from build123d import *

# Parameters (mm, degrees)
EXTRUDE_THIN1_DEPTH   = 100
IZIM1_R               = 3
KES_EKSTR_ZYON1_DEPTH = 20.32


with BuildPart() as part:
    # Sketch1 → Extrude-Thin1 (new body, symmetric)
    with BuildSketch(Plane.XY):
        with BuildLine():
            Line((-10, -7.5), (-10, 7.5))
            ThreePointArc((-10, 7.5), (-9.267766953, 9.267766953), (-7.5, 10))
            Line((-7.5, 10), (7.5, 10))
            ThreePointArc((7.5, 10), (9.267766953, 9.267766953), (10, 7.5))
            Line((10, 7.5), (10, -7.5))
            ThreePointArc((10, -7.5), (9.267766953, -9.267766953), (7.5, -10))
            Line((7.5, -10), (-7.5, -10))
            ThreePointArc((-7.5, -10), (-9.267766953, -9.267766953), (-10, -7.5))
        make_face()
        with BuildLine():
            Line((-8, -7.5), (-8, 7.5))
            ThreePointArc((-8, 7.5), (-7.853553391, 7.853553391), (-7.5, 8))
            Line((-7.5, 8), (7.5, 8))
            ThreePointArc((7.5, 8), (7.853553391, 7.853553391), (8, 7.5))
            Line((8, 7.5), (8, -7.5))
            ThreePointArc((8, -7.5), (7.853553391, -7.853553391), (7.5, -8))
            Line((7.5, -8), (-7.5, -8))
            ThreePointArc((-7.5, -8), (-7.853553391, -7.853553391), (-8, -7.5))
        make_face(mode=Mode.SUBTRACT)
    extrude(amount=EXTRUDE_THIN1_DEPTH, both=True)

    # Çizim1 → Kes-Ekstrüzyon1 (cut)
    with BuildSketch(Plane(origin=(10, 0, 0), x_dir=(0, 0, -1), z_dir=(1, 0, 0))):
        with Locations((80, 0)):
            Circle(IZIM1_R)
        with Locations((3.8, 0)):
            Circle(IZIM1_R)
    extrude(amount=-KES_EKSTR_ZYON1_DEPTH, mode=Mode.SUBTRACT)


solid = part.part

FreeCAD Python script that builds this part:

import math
import FreeCAD as App
import Part
import Sketcher

V = App.Vector

doc = App.newDocument("Part")
params = doc.addObject("Spreadsheet::Sheet", "Params")
for row, (alias, value) in enumerate([
    ("sketch1_radius", "2.5 mm"),
    ("sketch1_radius2", "0.5 mm"),
    ("sketch1_width", "15 mm"),
    ("pad1_length", "200 mm"),
    ("sketch2_diameter", "6 mm"),
    ("pocket1_length", "20.32 mm"),
], start=1):
    params.set(f"A{row}", alias)
    params.set(f"B{row}", "=" + value)
    params.setAlias(f"B{row}", alias)

body = doc.addObject("PartDesign::Body", "Body")

# Sketch on XY plane
sketch1 = doc.addObject("Sketcher::SketchObject", "Sketch")
body.addObject(sketch1)
sketch1.AttachmentSupport = (doc.XY_Plane, [""])
sketch1.MapMode = "FlatFace"
sketch1.addGeometry(Part.LineSegment(V(-10, 7.5, 0), V(-10, -7.5, 0)), False)
sketch1.addGeometry(Part.ArcOfCircle(Part.Circle(V(-7.5, -7.5, 0), V(0, 0, 1), 2.5), math.radians(180), math.radians(270)), False)
sketch1.addGeometry(Part.LineSegment(V(-7.5, -10, 0), V(7.5, -10, 0)), False)
sketch1.addGeometry(Part.ArcOfCircle(Part.Circle(V(7.5, -7.5, 0), V(0, 0, 1), 2.5), math.radians(-90), math.radians(0)), False)
sketch1.addGeometry(Part.LineSegment(V(10, -7.5, 0), V(10, 7.5, 0)), False)
sketch1.addGeometry(Part.ArcOfCircle(Part.Circle(V(7.5, 7.5, 0), V(0, 0, 1), 2.5), math.radians(0), math.radians(90)), False)
sketch1.addGeometry(Part.LineSegment(V(7.5, 10, 0), V(-7.5, 10, 0)), False)
sketch1.addGeometry(Part.ArcOfCircle(Part.Circle(V(-7.5, 7.5, 0), V(0, 0, 1), 2.5), math.radians(90), math.radians(180)), False)
sketch1.addGeometry(Part.LineSegment(V(-8, -7.5, 0), V(-8, 7.5, 0)), False)
sketch1.addGeometry(Part.ArcOfCircle(Part.Circle(V(-7.5, 7.5, 0), V(0, 0, 1), 0.5), math.radians(90), math.radians(180)), False)
sketch1.addGeometry(Part.LineSegment(V(-7.5, 8, 0), V(7.5, 8, 0)), False)
sketch1.addGeometry(Part.ArcOfCircle(Part.Circle(V(7.5, 7.5, 0), V(0, 0, 1), 0.5), math.radians(0), math.radians(90)), False)
sketch1.addGeometry(Part.LineSegment(V(8, 7.5, 0), V(8, -7.5, 0)), False)
sketch1.addGeometry(Part.ArcOfCircle(Part.Circle(V(7.5, -7.5, 0), V(0, 0, 1), 0.5), math.radians(-90), math.radians(0)), False)
sketch1.addGeometry(Part.LineSegment(V(7.5, -8, 0), V(-7.5, -8, 0)), False)
sketch1.addGeometry(Part.ArcOfCircle(Part.Circle(V(-7.5, -7.5, 0), V(0, 0, 1), 0.5), math.radians(180), math.radians(270)), False)
sketch1.addConstraint(Sketcher.Constraint("Tangent", 0, 2, 1, 1))
sketch1.addConstraint(Sketcher.Constraint("Tangent", 1, 2, 2, 1))
sketch1.addConstraint(Sketcher.Constraint("Tangent", 2, 2, 3, 1))
sketch1.addConstraint(Sketcher.Constraint("Tangent", 3, 2, 4, 1))
sketch1.addConstraint(Sketcher.Constraint("Tangent", 4, 2, 5, 1))
sketch1.addConstraint(Sketcher.Constraint("Tangent", 5, 2, 6, 1))
sketch1.addConstraint(Sketcher.Constraint("Tangent", 6, 2, 7, 1))
sketch1.addConstraint(Sketcher.Constraint("Tangent", 7, 2, 0, 1))
sketch1.addConstraint(Sketcher.Constraint("Tangent", 8, 2, 9, 2))
sketch1.addConstraint(Sketcher.Constraint("Tangent", 9, 1, 10, 1))
sketch1.addConstraint(Sketcher.Constraint("Tangent", 10, 2, 11, 2))
sketch1.addConstraint(Sketcher.Constraint("Tangent", 11, 1, 12, 1))
sketch1.addConstraint(Sketcher.Constraint("Tangent", 12, 2, 13, 2))
sketch1.addConstraint(Sketcher.Constraint("Tangent", 13, 1, 14, 1))
sketch1.addConstraint(Sketcher.Constraint("Tangent", 14, 2, 15, 2))
sketch1.addConstraint(Sketcher.Constraint("Tangent", 15, 1, 8, 1))
sketch1.addConstraint(Sketcher.Constraint("Vertical", 0))
sketch1.addConstraint(Sketcher.Constraint("Horizontal", 2))
sketch1.addConstraint(Sketcher.Constraint("Vertical", 4))
sketch1.addConstraint(Sketcher.Constraint("Horizontal", 6))
sketch1.addConstraint(Sketcher.Constraint("Vertical", 8))
sketch1.addConstraint(Sketcher.Constraint("Horizontal", 10))
sketch1.addConstraint(Sketcher.Constraint("Vertical", 12))
sketch1.addConstraint(Sketcher.Constraint("Horizontal", 14))
sketch1.addConstraint(Sketcher.Constraint("Coincident", 9, 3, 7, 3))
sketch1.addConstraint(Sketcher.Constraint("Coincident", 11, 3, 5, 3))
sketch1.addConstraint(Sketcher.Constraint("Coincident", 13, 3, 3, 3))
sketch1.addConstraint(Sketcher.Constraint("Equal", 1, 3))
sketch1.addConstraint(Sketcher.Constraint("Equal", 3, 5))
sketch1.addConstraint(Sketcher.Constraint("Equal", 5, 7))
sketch1.addConstraint(Sketcher.Constraint("Equal", 13, 15))
sketch1.addConstraint(Sketcher.Constraint("Symmetric", 1, 3, 5, 3, -1, 1))
sketch1.addConstraint(Sketcher.Constraint("Equal", 14, 0))
sketch1.addConstraint(Sketcher.Constraint("Radius", 1, 2.5))
sketch1.addConstraint(Sketcher.Constraint("Radius", 9, 0.5))
sketch1.addConstraint(Sketcher.Constraint("DistanceX", 2, 1, 2, 2, 15.0))
sketch1.setExpression("Constraints[33]", "Params.sketch1_radius")
sketch1.setExpression("Constraints[34]", "Params.sketch1_radius2")
sketch1.setExpression("Constraints[35]", "Params.sketch1_width")
pad1 = doc.addObject("PartDesign::Pad", "Pad")
body.addObject(pad1)
pad1.Profile = sketch1
pad1.setExpression("Length", "Params.pad1_length")
pad1.Midplane = True

# Sketch on YZ plane
sketch2 = doc.addObject("Sketcher::SketchObject", "Sketch001")
body.addObject(sketch2)
sketch2.AttachmentSupport = (doc.YZ_Plane, [""])
sketch2.MapMode = "FlatFace"
sketch2.AttachmentOffset = App.Placement(V(0, 0, 10), App.Rotation())
sketch2.addGeometry(Part.Circle(V(0, -80, 0), V(0, 0, 1), 3), False)
sketch2.addGeometry(Part.Circle(V(0, -3.8, 0), V(0, 0, 1), 3), False)
sketch2.addConstraint(Sketcher.Constraint("Equal", 0, 1))
sketch2.addConstraint(Sketcher.Constraint("PointOnObject", 0, 3, -2))
sketch2.addConstraint(Sketcher.Constraint("PointOnObject", 1, 3, -2))
sketch2.addConstraint(Sketcher.Constraint("Diameter", 0, 6.0))
sketch2.addConstraint(Sketcher.Constraint("DistanceY", 0, 3, -1, 1, 80.0))
sketch2.addConstraint(Sketcher.Constraint("DistanceY", 1, 3, -1, 1, 3.8))
sketch2.setExpression("Constraints[3]", "Params.sketch2_diameter")
pocket1 = doc.addObject("PartDesign::Pocket", "Pocket")
body.addObject(pocket1)
pocket1.Profile = sketch2
pocket1.setExpression("Length", "Params.pocket1_length")

doc.recompute()
